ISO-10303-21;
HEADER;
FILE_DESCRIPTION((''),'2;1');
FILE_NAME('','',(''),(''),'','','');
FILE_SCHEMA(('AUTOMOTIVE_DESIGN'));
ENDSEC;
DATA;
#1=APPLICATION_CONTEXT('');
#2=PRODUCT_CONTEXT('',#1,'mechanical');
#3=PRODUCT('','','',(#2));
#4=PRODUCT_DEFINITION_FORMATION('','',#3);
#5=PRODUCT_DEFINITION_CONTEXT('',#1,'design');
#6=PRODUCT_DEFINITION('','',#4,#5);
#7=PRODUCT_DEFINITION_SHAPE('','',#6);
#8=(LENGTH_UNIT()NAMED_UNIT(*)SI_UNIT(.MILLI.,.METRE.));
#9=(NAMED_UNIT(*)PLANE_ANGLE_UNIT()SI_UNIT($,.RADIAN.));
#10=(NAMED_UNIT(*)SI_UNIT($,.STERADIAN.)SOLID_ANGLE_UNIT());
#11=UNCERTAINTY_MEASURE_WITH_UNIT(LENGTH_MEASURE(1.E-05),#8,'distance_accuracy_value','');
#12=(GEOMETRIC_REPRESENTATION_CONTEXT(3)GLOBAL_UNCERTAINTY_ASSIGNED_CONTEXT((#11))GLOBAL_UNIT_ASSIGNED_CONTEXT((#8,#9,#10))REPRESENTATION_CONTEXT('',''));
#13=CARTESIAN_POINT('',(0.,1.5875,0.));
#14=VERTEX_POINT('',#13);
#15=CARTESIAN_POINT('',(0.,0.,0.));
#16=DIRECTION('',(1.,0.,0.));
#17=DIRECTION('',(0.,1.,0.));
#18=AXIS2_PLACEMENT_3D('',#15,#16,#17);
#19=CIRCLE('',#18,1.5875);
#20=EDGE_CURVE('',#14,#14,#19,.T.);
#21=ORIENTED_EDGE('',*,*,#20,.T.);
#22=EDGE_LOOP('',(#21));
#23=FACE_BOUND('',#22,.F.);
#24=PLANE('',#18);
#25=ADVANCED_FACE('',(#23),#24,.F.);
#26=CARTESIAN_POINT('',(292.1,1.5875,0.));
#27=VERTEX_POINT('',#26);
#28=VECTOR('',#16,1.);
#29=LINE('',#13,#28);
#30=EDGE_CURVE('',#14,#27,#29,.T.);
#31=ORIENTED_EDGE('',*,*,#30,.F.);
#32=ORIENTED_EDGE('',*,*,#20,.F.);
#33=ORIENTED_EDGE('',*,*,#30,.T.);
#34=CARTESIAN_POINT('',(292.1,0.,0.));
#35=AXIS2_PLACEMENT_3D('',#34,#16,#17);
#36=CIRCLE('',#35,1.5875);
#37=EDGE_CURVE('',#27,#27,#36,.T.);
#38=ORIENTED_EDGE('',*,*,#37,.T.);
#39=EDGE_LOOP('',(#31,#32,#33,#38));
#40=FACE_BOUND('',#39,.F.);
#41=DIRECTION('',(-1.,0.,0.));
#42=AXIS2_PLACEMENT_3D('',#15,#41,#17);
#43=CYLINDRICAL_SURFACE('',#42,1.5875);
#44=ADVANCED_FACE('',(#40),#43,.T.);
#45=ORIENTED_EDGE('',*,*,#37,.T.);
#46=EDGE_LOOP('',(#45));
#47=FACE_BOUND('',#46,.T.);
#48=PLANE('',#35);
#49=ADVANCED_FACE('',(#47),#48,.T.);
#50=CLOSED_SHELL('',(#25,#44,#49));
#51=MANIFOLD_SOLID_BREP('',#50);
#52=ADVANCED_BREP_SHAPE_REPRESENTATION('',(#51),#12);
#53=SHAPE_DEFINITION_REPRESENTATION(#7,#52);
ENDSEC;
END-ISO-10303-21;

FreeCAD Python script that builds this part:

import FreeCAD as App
import Part
import Sketcher

V = App.Vector
Q = App.Units.Quantity

doc = App.newDocument("Part")
body = doc.addObject("PartDesign::Body", "Body")

# Sketch on YZ plane
sketch1 = body.newObject("Sketcher::SketchObject", "Sketch")
sketch1.AttachmentSupport = (doc.getObject("YZ_Plane"), [""])
sketch1.MapMode = "FlatFace"
sketch1.addGeometry(Part.Circle(V(0, 0, 0), V(0, 0, 1), 1.6), False)
sketch1.addConstraint(Sketcher.Constraint("Coincident", 0, 3, -1, 1))
sketch1.addConstraint(Sketcher.Constraint("Diameter", 0, Q("0.125 in")))
pad1 = body.newObject("PartDesign::Pad", "Pad")
pad1.Profile = sketch1
pad1.Length = Q("11.5 in")

doc.recompute()
